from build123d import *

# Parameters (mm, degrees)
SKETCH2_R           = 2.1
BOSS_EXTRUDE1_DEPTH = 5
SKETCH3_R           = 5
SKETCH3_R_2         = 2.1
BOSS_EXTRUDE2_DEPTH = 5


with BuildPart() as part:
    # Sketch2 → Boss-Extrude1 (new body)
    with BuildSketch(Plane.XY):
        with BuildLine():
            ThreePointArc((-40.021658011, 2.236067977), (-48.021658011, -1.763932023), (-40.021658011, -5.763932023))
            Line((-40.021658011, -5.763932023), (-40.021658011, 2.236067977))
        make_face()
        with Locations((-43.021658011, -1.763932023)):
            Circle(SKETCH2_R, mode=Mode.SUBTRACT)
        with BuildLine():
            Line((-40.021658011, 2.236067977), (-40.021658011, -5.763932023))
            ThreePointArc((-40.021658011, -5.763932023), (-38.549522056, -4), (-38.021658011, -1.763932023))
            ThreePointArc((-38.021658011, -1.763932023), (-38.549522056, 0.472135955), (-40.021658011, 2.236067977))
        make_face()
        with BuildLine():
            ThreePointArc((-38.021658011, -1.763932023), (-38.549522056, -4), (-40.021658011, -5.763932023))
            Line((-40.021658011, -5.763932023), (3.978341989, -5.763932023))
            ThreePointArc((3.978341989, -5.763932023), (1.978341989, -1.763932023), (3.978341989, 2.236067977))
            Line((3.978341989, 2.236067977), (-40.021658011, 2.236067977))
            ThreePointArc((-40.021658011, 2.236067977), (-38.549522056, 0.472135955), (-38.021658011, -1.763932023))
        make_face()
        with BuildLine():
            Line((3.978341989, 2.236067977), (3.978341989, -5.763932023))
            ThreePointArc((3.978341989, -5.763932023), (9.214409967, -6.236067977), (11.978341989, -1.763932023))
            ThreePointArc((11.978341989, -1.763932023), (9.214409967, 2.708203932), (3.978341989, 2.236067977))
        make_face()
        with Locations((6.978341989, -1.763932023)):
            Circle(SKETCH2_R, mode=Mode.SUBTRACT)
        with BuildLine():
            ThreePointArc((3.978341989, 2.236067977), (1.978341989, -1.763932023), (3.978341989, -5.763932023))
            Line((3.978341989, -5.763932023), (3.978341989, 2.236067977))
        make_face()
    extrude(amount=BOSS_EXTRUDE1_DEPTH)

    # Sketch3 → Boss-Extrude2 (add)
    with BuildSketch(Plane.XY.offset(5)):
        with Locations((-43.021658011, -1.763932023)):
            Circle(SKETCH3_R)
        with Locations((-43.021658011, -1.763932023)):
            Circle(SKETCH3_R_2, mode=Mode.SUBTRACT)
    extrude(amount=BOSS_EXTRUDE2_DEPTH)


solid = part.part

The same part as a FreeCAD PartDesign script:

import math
import FreeCAD as App
import Part
import Sketcher
from FreeCAD import Vector
Q = App.Units.Quantity

doc = App.newDocument("Part")
params = doc.addObject("Spreadsheet::Sheet", "Params")
for row, (alias, value) in enumerate([
    ("sketch1_radius", "5 mm"),
    ("sketch1_diameter", "4.2 mm"),
    ("sketch1_width", "44 mm"),
    ("pad1_length", "5 mm"),
    ("sketch2_diameter", "10 mm"),
    ("sketch2_diameter2", "4.2 mm"),
    ("pad2_length", "5 mm"),
], start=1):
    params.set(f"A{row}", alias)
    params.set(f"B{row}", "=" + value)
    params.setAlias(f"B{row}", alias)

body = doc.addObject("PartDesign::Body", "Body")

sketch1 = body.newObject("Sketcher::SketchObject", "Sketch")
sketch1.AttachmentSupport = (doc.getObject("XY_Plane"), [""])
sketch1.MapMode = "FlatFace"
sketch1.addGeometry([
    Part.ArcOfCircle(Part.Circle(Vector(-43, -1.8, 0), Vector(0, 0, 1), 5), math.radians(53), math.radians(307)),
    Part.LineSegment(Vector(-40, -5.8, 0), Vector(4, -5.8, 0)),
    Part.ArcOfCircle(Part.Circle(Vector(7, -1.8, 0), Vector(0, 0, 1), 5), math.radians(-127), math.radians(0)),
    Part.ArcOfCircle(Part.Circle(Vector(7, -1.8, 0), Vector(0, 0, 1), 5), math.radians(0), math.radians(127)),
    Part.LineSegment(Vector(4, 2.2, 0), Vector(-40, 2.2, 0)),
    Part.Circle(Vector(-43, -1.8, 0), Vector(0, 0, 1), 2.1),
    Part.Circle(Vector(7, -1.8, 0), Vector(0, 0, 1), 2.1),
], False)
sketch1.addConstraint([
    Sketcher.Constraint("Coincident", 0, 2, 1, 1),
    Sketcher.Constraint("Coincident", 1, 2, 2, 1),
    Sketcher.Constraint("Tangent", 2, 2, 3, 1),
    Sketcher.Constraint("Coincident", 3, 2, 4, 1),
    Sketcher.Constraint("Coincident", 4, 2, 0, 1),
    Sketcher.Constraint("Horizontal", 1),
    Sketcher.Constraint("Horizontal", 4),
    Sketcher.Constraint("Coincident", 5, 3, 0, 3),
    Sketcher.Constraint("Coincident", 6, 3, 2, 3),
    Sketcher.Constraint("Equal", 0, 2),
    Sketcher.Constraint("Equal", 2, 3),
    Sketcher.Constraint("Equal", 5, 6),
    Sketcher.Constraint("Horizontal", 0, 3, 2, 3),
    Sketcher.Constraint("Horizontal", 6, 3, 2, 2),
    Sketcher.Constraint("Vertical", 1, 2, 3, 2),
    Sketcher.Constraint("Radius", 0, Q("5 mm")),
    Sketcher.Constraint("Diameter", 5, Q("4.2 mm")),
    Sketcher.Constraint("DistanceX", 1, 1, 1, 2, Q("44 mm")),
    Sketcher.Constraint("DistanceX", 0, 3, 2, 3, Q("50 mm")),
    Sketcher.Constraint("DistanceX", 0, 3, -1, 1, Q("43.021658 mm")),
    Sketcher.Constraint("DistanceY", 0, 3, -1, 1, Q("1.763932 mm")),
])
sketch1.setExpression("Constraints[15]", "Params.sketch1_radius")
sketch1.setExpression("Constraints[16]", "Params.sketch1_diameter")
sketch1.setExpression("Constraints[17]", "Params.sketch1_width")
pad1 = body.newObject("PartDesign::Pad", "Pad")
pad1.Profile = sketch1
pad1.setExpression("Length", "Params.pad1_length")

sketch2 = body.newObject("Sketcher::SketchObject", "Sketch001")
sketch2.AttachmentSupport = (doc.getObject("XY_Plane"), [""])
sketch2.MapMode = "FlatFace"
sketch2.AttachmentOffset = App.Placement(Vector(0, 0, 5), App.Rotation())
sketch2.addGeometry([
    Part.Circle(Vector(-43, -1.8, 0), Vector(0, 0, 1), 5),
    Part.Circle(Vector(-43, -1.8, 0), Vector(0, 0, 1), 2.1),
], False)
sketch2.addConstraint([
    Sketcher.Constraint("Coincident", 1, 3, 0, 3),
    Sketcher.Constraint("Diameter", 0, Q("10 mm")),
    Sketcher.Constraint("Diameter", 1, Q("4.2 mm")),
    Sketcher.Constraint("DistanceX", 0, 3, -1, 1, Q("43.021658 mm")),
    Sketcher.Constraint("DistanceY", 0, 3, -1, 1, Q("1.763932 mm")),
])
sketch2.setExpression("Constraints[1]", "Params.sketch2_diameter")
sketch2.setExpression("Constraints[2]", "Params.sketch2_diameter2")
pad2 = body.newObject("PartDesign::Pad", "Pad001")
pad2.Profile = sketch2
pad2.setExpression("Length", "Params.pad2_length")

doc.recompute()
